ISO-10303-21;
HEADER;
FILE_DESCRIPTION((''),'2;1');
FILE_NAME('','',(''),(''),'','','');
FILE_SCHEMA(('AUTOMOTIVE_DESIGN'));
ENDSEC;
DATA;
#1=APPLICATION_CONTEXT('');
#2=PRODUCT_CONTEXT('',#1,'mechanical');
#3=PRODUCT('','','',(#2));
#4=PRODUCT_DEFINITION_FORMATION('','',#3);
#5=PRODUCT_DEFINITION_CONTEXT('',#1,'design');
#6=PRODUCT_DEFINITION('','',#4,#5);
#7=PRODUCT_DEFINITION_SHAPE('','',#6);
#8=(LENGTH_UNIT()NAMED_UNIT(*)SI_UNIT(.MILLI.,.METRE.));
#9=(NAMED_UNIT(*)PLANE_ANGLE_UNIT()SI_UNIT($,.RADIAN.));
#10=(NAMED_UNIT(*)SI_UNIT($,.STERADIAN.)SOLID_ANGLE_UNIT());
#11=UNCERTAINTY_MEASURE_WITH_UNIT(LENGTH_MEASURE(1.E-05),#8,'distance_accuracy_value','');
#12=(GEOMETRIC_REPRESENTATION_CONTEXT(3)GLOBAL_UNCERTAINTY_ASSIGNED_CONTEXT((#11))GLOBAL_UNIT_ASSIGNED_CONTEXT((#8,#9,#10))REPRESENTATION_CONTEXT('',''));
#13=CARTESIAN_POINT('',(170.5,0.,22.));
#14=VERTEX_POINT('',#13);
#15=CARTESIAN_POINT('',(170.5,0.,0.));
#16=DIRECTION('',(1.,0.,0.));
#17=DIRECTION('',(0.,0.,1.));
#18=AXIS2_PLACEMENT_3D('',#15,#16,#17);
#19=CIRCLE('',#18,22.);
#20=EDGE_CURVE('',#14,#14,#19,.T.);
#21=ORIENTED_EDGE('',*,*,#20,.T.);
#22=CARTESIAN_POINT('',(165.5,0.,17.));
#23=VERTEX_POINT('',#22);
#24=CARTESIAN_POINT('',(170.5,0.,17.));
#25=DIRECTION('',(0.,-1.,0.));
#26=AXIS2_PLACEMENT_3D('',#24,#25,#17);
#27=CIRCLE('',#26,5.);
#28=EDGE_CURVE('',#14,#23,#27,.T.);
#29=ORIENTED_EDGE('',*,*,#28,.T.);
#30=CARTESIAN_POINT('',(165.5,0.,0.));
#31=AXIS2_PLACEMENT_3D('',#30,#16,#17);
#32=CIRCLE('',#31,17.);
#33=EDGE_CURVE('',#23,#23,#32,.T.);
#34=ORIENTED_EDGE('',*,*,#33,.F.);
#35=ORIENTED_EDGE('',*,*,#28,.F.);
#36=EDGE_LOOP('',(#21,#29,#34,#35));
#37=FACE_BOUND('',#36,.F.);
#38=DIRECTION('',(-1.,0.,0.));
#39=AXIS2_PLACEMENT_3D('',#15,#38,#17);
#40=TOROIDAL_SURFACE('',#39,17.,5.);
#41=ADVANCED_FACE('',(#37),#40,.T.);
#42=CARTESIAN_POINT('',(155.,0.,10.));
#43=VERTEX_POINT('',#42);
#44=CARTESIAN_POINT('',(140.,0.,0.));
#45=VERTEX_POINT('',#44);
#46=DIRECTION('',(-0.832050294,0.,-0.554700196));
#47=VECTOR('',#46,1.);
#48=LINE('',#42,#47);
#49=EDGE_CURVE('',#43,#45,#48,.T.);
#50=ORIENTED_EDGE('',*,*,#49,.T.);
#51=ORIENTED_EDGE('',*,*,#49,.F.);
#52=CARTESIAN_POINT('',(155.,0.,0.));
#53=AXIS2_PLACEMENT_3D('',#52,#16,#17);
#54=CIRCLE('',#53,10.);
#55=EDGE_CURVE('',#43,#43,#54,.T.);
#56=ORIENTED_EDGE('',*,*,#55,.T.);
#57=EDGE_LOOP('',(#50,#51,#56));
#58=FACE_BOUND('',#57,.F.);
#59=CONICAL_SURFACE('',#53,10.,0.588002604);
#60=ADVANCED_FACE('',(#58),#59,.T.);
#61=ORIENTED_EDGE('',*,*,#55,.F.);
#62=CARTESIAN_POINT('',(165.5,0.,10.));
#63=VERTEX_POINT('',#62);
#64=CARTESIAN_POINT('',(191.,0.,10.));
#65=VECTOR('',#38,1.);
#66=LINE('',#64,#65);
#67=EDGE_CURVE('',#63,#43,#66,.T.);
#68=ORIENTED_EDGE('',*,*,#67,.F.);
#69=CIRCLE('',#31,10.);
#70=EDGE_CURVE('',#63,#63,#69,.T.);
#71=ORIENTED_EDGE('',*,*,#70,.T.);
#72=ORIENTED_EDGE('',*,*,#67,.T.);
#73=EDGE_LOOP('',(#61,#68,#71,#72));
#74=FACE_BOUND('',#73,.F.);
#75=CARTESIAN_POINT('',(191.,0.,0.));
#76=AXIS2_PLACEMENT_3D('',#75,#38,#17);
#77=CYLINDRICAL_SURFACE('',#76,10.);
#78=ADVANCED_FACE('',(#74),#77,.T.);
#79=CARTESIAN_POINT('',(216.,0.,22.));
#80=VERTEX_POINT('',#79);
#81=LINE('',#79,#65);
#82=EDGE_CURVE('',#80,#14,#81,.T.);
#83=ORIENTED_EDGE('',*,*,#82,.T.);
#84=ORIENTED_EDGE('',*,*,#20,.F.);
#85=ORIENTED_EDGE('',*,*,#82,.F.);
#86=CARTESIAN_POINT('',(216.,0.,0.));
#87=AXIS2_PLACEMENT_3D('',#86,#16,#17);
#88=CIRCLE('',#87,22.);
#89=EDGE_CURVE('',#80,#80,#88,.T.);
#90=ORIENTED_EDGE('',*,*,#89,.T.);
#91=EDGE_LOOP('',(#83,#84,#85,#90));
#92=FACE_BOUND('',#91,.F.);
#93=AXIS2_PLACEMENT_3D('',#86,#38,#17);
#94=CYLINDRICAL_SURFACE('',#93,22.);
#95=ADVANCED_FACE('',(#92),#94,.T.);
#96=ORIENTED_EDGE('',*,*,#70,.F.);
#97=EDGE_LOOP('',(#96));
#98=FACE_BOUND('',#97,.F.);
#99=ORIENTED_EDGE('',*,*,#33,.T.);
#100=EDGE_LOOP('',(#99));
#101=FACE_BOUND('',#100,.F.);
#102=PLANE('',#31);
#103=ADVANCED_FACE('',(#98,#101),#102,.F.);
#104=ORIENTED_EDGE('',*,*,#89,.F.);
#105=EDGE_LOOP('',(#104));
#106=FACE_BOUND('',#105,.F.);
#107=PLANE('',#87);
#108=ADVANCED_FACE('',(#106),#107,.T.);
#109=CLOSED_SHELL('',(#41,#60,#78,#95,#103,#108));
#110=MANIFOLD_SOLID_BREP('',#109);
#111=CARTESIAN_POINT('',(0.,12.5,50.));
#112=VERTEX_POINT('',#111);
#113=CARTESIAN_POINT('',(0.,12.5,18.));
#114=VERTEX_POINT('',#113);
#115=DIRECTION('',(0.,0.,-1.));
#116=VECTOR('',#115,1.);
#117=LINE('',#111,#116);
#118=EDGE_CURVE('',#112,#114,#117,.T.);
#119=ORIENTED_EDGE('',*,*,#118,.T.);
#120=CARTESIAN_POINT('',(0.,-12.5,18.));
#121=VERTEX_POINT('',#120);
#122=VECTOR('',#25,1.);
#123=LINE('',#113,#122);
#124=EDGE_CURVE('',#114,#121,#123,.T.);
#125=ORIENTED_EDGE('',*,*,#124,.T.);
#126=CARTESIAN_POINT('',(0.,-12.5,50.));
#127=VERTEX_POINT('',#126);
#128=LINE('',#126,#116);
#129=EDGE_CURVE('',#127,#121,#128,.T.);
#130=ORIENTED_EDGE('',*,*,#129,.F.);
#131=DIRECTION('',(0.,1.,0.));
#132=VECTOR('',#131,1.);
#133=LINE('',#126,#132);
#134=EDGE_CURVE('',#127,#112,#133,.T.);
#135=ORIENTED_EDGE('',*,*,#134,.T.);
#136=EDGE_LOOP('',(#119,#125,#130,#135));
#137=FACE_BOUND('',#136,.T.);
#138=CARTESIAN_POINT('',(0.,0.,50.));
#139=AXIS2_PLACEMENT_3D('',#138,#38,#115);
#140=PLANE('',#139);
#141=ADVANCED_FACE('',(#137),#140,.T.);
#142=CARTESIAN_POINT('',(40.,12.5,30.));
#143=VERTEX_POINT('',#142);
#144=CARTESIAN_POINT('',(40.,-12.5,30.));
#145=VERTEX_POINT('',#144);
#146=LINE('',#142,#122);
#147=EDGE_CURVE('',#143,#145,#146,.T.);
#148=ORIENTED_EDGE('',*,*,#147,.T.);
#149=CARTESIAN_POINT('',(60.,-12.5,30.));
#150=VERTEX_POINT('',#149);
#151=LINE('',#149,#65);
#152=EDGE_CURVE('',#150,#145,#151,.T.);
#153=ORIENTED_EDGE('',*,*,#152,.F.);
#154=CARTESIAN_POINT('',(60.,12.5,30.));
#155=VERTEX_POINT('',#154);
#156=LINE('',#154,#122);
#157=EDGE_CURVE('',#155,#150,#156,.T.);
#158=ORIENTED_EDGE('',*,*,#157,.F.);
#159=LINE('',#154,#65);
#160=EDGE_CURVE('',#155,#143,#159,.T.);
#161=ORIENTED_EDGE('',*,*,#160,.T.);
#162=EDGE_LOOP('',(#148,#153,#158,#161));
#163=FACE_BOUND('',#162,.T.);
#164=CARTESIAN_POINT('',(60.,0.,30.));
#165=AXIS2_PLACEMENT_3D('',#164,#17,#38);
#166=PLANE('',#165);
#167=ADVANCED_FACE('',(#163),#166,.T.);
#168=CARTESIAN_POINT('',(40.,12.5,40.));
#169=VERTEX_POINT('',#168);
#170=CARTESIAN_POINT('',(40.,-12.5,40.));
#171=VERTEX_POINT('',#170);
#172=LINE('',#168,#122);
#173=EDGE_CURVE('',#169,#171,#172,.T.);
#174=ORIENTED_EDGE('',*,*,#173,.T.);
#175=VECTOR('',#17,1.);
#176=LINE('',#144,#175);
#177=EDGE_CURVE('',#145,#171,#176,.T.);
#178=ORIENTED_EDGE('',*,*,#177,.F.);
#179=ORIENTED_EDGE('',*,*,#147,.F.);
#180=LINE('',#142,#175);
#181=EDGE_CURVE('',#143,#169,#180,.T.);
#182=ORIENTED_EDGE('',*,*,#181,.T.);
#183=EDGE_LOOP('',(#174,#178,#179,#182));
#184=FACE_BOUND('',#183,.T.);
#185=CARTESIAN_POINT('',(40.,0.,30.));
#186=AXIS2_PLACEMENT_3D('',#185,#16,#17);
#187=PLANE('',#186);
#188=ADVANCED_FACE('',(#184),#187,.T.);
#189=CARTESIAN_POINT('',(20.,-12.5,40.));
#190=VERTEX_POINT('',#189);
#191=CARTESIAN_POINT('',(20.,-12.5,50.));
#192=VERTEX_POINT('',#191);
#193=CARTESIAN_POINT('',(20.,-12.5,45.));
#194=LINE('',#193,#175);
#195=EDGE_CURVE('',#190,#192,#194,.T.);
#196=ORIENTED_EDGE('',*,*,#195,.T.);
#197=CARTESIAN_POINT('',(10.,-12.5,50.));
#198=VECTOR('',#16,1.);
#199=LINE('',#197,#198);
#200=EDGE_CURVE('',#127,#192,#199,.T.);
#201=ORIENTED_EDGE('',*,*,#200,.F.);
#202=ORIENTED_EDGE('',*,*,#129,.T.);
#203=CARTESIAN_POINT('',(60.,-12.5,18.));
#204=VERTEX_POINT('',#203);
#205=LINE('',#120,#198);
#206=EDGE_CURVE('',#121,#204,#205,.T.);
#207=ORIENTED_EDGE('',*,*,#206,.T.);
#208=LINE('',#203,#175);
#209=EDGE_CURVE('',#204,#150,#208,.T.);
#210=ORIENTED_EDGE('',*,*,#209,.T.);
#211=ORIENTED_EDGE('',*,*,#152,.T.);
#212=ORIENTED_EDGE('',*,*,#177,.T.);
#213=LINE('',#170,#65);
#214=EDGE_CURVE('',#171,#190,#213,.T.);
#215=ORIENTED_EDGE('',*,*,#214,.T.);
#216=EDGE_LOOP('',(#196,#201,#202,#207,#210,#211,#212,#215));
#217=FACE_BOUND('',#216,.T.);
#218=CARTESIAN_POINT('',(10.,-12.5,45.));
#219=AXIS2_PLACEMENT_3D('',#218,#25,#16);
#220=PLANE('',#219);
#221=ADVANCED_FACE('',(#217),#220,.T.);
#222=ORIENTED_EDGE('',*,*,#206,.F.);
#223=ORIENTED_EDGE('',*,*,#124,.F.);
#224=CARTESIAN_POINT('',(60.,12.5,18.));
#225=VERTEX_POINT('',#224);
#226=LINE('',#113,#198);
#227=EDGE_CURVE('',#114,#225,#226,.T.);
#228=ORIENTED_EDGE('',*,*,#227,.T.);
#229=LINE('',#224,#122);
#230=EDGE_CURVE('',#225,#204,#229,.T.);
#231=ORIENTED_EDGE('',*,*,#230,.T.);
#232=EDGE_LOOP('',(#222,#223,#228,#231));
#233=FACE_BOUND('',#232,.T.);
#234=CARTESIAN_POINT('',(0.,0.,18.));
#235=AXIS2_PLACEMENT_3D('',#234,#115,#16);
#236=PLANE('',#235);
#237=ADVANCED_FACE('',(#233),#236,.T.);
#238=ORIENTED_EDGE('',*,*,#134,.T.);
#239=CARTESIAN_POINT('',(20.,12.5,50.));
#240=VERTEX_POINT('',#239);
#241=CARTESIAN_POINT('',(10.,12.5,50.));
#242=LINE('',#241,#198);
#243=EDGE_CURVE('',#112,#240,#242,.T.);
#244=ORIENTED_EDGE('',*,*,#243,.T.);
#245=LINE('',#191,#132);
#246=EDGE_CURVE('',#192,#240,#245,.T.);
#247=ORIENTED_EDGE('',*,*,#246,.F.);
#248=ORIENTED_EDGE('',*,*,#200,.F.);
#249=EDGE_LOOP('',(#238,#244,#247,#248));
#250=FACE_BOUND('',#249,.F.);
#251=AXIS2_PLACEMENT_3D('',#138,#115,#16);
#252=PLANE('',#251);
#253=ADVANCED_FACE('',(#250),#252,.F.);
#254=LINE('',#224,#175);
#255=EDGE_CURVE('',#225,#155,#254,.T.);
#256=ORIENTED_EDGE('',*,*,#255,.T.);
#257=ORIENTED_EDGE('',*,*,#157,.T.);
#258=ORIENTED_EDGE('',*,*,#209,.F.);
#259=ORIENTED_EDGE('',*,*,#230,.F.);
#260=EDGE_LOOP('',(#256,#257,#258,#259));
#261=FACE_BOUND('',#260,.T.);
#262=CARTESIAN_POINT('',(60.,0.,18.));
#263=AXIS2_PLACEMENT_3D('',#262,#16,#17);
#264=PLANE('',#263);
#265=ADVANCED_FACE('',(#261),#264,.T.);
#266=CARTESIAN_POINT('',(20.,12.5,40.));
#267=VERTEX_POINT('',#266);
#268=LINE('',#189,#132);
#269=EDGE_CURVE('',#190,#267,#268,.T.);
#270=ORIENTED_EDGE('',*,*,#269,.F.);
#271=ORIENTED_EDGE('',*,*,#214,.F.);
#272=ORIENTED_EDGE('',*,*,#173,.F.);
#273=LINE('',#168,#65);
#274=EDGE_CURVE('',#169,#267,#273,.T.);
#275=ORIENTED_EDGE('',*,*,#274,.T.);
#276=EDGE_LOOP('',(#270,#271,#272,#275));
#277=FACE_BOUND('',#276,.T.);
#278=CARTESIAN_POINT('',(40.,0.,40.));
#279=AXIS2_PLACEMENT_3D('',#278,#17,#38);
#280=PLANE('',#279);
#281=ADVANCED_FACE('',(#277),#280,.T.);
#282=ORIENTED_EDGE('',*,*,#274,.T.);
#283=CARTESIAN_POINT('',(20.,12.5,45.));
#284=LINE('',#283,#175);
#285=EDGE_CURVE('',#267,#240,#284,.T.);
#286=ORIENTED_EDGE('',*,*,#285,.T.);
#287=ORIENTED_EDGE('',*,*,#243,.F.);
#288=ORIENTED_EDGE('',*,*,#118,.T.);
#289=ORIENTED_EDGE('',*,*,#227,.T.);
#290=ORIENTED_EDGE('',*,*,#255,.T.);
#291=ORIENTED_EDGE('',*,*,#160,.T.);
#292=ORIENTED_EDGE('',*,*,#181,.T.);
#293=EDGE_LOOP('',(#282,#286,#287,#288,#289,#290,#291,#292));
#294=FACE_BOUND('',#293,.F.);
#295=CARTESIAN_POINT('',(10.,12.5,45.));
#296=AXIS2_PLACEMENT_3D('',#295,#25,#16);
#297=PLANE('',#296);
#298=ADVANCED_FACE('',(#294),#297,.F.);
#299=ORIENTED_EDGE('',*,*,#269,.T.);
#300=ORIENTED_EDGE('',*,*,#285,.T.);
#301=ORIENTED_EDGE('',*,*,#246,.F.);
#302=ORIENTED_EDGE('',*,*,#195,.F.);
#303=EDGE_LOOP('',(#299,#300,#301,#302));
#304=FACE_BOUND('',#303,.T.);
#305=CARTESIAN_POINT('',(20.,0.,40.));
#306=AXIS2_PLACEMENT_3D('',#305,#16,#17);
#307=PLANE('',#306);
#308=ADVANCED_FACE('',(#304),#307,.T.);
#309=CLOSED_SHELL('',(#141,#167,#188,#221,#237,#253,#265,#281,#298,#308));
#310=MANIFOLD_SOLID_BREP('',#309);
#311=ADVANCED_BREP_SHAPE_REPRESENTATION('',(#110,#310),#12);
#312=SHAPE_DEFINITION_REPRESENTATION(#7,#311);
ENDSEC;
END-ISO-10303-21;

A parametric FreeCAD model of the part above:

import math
import FreeCAD as App
import Part
import Sketcher

V = App.Vector
Q = App.Units.Quantity


def add_polygon(sketch, points):
    """Adds a closed chain of lines whose ends are joined by coincident constraints."""
    first, n = sketch.GeometryCount, len(points)
    for a, b in zip(points, points[1:] + points[:1]):
        sketch.addGeometry(Part.LineSegment(App.Vector(*a, 0), App.Vector(*b, 0)), False)
    for i in range(n):
        sketch.addConstraint(Sketcher.Constraint("Coincident", first + i, 2, first + (i + 1) % n, 1))

doc = App.newDocument("Part")
params = doc.addObject("Spreadsheet::Sheet", "Params")
for row, (alias, value) in enumerate([
    ("sketch1_width", "60 mm"),
    ("sketch1_height", "32 mm"),
    ("sketch1_height2", "12 mm"),
    ("pad1_length", "25 mm"),
    ("sketch2_radius", "5 mm"),
    ("sketch2_width", "76 mm"),
    ("sketch2_height", "7 mm"),
    ("sketch2_height2", "22 mm"),
    ("sketch2_width2", "10.5 mm"),
    ("revolution_angle", "360 deg"),
], start=1):
    params.set(f"A{row}", alias)
    params.set(f"B{row}", "=" + value)
    params.setAlias(f"B{row}", alias)

body = doc.addObject("PartDesign::Body", "Body")

# Sketch on XZ plane
sketch1 = body.newObject("Sketcher::SketchObject", "Sketch")
sketch1.AttachmentSupport = (doc.getObject("XZ_Plane"), [""])
sketch1.MapMode = "FlatFace"
add_polygon(sketch1, [(0, 50), (0, 18), (60, 18), (60, 30), (40, 30), (40, 40), (20, 40), (20, 50)])  # lines 0-7
sketch1.addConstraint(Sketcher.Constraint("Vertical", 0))
sketch1.addConstraint(Sketcher.Constraint("Horizontal", 1))
sketch1.addConstraint(Sketcher.Constraint("Vertical", 2))
sketch1.addConstraint(Sketcher.Constraint("Horizontal", 3))
sketch1.addConstraint(Sketcher.Constraint("Vertical", 4))
sketch1.addConstraint(Sketcher.Constraint("Horizontal", 5))
sketch1.addConstraint(Sketcher.Constraint("Vertical", 6))
sketch1.addConstraint(Sketcher.Constraint("Horizontal", 7))
sketch1.addConstraint(Sketcher.Constraint("PointOnObject", 0, 2, -2))
sketch1.addConstraint(Sketcher.Constraint("Equal", 3, 5))
sketch1.addConstraint(Sketcher.Constraint("Equal", 5, 7))
sketch1.addConstraint(Sketcher.Constraint("Equal", 4, 6))
sketch1.addConstraint(Sketcher.Constraint("DistanceX", 1, 1, 1, 2, Q("60 mm")))
sketch1.addConstraint(Sketcher.Constraint("DistanceY", 0, 2, 0, 1, Q("32 mm")))
sketch1.addConstraint(Sketcher.Constraint("DistanceY", 2, 1, 2, 2, Q("12 mm")))
sketch1.addConstraint(Sketcher.Constraint("DistanceY", -1, 1, 0, 2, Q("18 mm")))
sketch1.setExpression("Constraints[20]", "Params.sketch1_width")
sketch1.setExpression("Constraints[21]", "Params.sketch1_height")
sketch1.setExpression("Constraints[22]", "Params.sketch1_height2")
pad1 = body.newObject("PartDesign::Pad", "Pad")
pad1.Profile = sketch1
pad1.setExpression("Length", "Params.pad1_length")
pad1.Midplane = True
body2 = doc.addObject("PartDesign::Body", "Body001")

# Sketch on XZ plane
sketch2 = body2.newObject("Sketcher::SketchObject", "Sketch001")
sketch2.AttachmentSupport = (doc.getObject("XZ_Plane001"), [""])
sketch2.MapMode = "FlatFace"
sketch2.addGeometry(Part.ArcOfCircle(Part.Circle(V(170.5, 17, 0), V(0, 0, 1), 5), math.radians(90), math.radians(180)), False)
sketch2.addGeometry(Part.LineSegment(V(165.5, 17, 0), V(165.5, 10, 0)), False)
sketch2.addGeometry(Part.LineSegment(V(165.5, 10, 0), V(155, 10, 0)), False)
sketch2.addGeometry(Part.LineSegment(V(155, 10, 0), V(140, 0, 0)), False)
sketch2.addGeometry(Part.LineSegment(V(140, 0, 0), V(216, 0, 0)), False)
sketch2.addGeometry(Part.LineSegment(V(216, 0, 0), V(216, 22, 0)), False)
sketch2.addGeometry(Part.LineSegment(V(216, 22, 0), V(170.5, 22, 0)), False)
sketch2.addConstraint(Sketcher.Constraint("Tangent", 0, 2, 1, 1))
sketch2.addConstraint(Sketcher.Constraint("Coincident", 1, 2, 2, 1))
sketch2.addConstraint(Sketcher.Constraint("Coincident", 2, 2, 3, 1))
sketch2.addConstraint(Sketcher.Constraint("Coincident", 3, 2, 4, 1))
sketch2.addConstraint(Sketcher.Constraint("Coincident", 4, 2, 5, 1))
sketch2.addConstraint(Sketcher.Constraint("Coincident", 5, 2, 6, 1))
sketch2.addConstraint(Sketcher.Constraint("Tangent", 6, 2, 0, 1))
sketch2.addConstraint(Sketcher.Constraint("Vertical", 1))
sketch2.addConstraint(Sketcher.Constraint("Horizontal", 2))
sketch2.addConstraint(Sketcher.Constraint("Horizontal", 4))
sketch2.addConstraint(Sketcher.Constraint("Vertical", 5))
sketch2.addConstraint(Sketcher.Constraint("Horizontal", 6))
sketch2.addConstraint(Sketcher.Constraint("PointOnObject", 3, 2, -1))
sketch2.addConstraint(Sketcher.Constraint("Radius", 0, Q("5 mm")))
sketch2.addConstraint(Sketcher.Constraint("DistanceX", 4, 1, 4, 2, Q("76 mm")))
sketch2.addConstraint(Sketcher.Constraint("DistanceY", 1, 2, 1, 1, Q("7 mm")))
sketch2.addConstraint(Sketcher.Constraint("DistanceY", 5, 1, 5, 2, Q("22 mm")))
sketch2.addConstraint(Sketcher.Constraint("DistanceX", 2, 2, 2, 1, Q("10.5 mm")))
sketch2.addConstraint(Sketcher.Constraint("DistanceX", 6, 2, 6, 1, Q("45.5 mm")))
sketch2.addConstraint(Sketcher.Constraint("DistanceX", -1, 1, 2, 2, Q("155 mm")))
sketch2.setExpression("Constraints[13]", "Params.sketch2_radius")
sketch2.setExpression("Constraints[14]", "Params.sketch2_width")
sketch2.setExpression("Constraints[15]", "Params.sketch2_height")
sketch2.setExpression("Constraints[16]", "Params.sketch2_height2")
sketch2.setExpression("Constraints[17]", "Params.sketch2_width2")
revolution = body2.newObject("PartDesign::Revolution", "Revolution")
revolution.Profile = sketch2
revolution.ReferenceAxis = (sketch2, ["H_Axis"])
revolution.setExpression("Angle", "Params.revolution_angle")

doc.recompute()
